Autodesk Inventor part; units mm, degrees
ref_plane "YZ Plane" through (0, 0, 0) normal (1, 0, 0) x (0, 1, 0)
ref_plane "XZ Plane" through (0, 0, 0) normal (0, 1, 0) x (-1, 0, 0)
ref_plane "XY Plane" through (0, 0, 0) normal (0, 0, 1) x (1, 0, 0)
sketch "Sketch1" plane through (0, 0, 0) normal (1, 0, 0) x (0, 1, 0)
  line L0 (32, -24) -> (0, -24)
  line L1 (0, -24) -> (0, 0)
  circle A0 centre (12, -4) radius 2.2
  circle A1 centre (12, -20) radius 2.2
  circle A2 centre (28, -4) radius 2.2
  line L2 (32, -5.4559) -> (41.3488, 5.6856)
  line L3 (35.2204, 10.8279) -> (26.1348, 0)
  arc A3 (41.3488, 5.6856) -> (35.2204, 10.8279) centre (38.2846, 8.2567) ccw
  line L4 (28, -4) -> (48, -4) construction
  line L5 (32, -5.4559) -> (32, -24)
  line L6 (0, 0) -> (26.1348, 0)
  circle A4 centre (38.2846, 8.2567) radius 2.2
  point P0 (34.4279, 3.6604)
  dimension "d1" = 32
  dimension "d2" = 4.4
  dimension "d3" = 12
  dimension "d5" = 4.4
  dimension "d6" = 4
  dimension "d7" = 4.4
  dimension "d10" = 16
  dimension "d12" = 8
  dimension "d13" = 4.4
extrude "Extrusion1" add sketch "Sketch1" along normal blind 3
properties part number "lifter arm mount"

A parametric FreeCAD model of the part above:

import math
import FreeCAD as App
import Part
import Sketcher

V = App.Vector
Q = App.Units.Quantity

doc = App.newDocument("Part")
body = doc.addObject("PartDesign::Body", "Body")

sketch1 = body.newObject("Sketcher::SketchObject", "Sketch")
sketch1.AttachmentSupport = (doc.getObject("YZ_Plane"), [""])
sketch1.MapMode = "FlatFace"
sketch1.addGeometry(Part.LineSegment(V(0, -24, 0), V(32, -24, 0)), False)
sketch1.addGeometry(Part.LineSegment(V(32, -24, 0), V(32, -5.5, 0)), False)
sketch1.addGeometry(Part.LineSegment(V(32, -5.5, 0), V(41.3, 5.7, 0)), False)
sketch1.addGeometry(Part.ArcOfCircle(Part.Circle(V(38.3, 8.3, 0), V(0, 0, 1), 4), math.radians(-40), math.radians(140)), False)
sketch1.addGeometry(Part.LineSegment(V(35.2, 10.8, 0), V(26.1, 0, 0)), False)
sketch1.addGeometry(Part.LineSegment(V(26.1, 0, 0), V(0, 0, 0)), False)
sketch1.addGeometry(Part.LineSegment(V(0, 0, 0), V(0, -24, 0)), False)
sketch1.addGeometry(Part.Circle(V(12, -20, 0), V(0, 0, 1), 2.2), False)
sketch1.addGeometry(Part.Circle(V(12, -4, 0), V(0, 0, 1), 2.2), False)
sketch1.addGeometry(Part.Circle(V(28, -4, 0), V(0, 0, 1), 2.2), False)
sketch1.addGeometry(Part.Circle(V(38.3, 8.3, 0), V(0, 0, 1), 2.2), False)
sketch1.addConstraint(Sketcher.Constraint("Coincident", 0, 2, 1, 1))
sketch1.addConstraint(Sketcher.Constraint("Coincident", 1, 2, 2, 1))
sketch1.addConstraint(Sketcher.Constraint("Tangent", 2, 2, 3, 1))
sketch1.addConstraint(Sketcher.Constraint("Tangent", 3, 2, 4, 1))
sketch1.addConstraint(Sketcher.Constraint("Coincident", 4, 2, 5, 1))
sketch1.addConstraint(Sketcher.Constraint("Coincident", 5, 2, 6, 1))
sketch1.addConstraint(Sketcher.Constraint("Coincident", 6, 2, 0, 1))
sketch1.addConstraint(Sketcher.Constraint("Horizontal", 0))
sketch1.addConstraint(Sketcher.Constraint("Vertical", 1))
sketch1.addConstraint(Sketcher.Constraint("Horizontal", 5))
sketch1.addConstraint(Sketcher.Constraint("Vertical", 6))
sketch1.addConstraint(Sketcher.Constraint("Coincident", 5, 2, -1, 1))
sketch1.addConstraint(Sketcher.Constraint("Coincident", 10, 3, 3, 3))
sketch1.addConstraint(Sketcher.Constraint("Equal", 7, 8))
sketch1.addConstraint(Sketcher.Constraint("Equal", 8, 9))
sketch1.addConstraint(Sketcher.Constraint("Equal", 9, 10))
sketch1.addConstraint(Sketcher.Constraint("Parallel", 2, 4))
sketch1.addConstraint(Sketcher.Constraint("Horizontal", 8, 3, 9, 3))
sketch1.addConstraint(Sketcher.Constraint("Vertical", 7, 3, 8, 3))
sketch1.addConstraint(Sketcher.Constraint("Radius", 3, Q("4 mm")))
sketch1.addConstraint(Sketcher.Constraint("Diameter", 7, Q("4.4 mm")))
sketch1.addConstraint(Sketcher.Constraint("DistanceX", 0, 1, 0, 2, Q("32 mm")))
sketch1.addConstraint(Sketcher.Constraint("DistanceX", -1, 1, 7, 3, Q("12 mm")))
sketch1.addConstraint(Sketcher.Constraint("DistanceY", 8, 3, -1, 1, Q("4 mm")))
sketch1.addConstraint(Sketcher.Constraint("DistanceY", 7, 3, 8, 3, Q("16 mm")))
sketch1.addConstraint(Sketcher.Constraint("DistanceX", 8, 3, 9, 3, Q("16 mm")))
sketch1.addConstraint(Sketcher.Constraint("DistanceY", 0, 2, 7, 3, Q("4 mm")))
sketch1.addConstraint(Sketcher.Constraint("Angle", 2, Q("50 deg")))
sketch1.addConstraint(Sketcher.Constraint("DistanceY", 1, 1, 1, 2, Q("18.544 mm")))
sketch1.addConstraint(Sketcher.Constraint("Distance", 2, Q("14.5442 mm")))
pad1 = body.newObject("PartDesign::Pad", "Pad")
pad1.Profile = sketch1
pad1.Length = 3

doc.recompute()
